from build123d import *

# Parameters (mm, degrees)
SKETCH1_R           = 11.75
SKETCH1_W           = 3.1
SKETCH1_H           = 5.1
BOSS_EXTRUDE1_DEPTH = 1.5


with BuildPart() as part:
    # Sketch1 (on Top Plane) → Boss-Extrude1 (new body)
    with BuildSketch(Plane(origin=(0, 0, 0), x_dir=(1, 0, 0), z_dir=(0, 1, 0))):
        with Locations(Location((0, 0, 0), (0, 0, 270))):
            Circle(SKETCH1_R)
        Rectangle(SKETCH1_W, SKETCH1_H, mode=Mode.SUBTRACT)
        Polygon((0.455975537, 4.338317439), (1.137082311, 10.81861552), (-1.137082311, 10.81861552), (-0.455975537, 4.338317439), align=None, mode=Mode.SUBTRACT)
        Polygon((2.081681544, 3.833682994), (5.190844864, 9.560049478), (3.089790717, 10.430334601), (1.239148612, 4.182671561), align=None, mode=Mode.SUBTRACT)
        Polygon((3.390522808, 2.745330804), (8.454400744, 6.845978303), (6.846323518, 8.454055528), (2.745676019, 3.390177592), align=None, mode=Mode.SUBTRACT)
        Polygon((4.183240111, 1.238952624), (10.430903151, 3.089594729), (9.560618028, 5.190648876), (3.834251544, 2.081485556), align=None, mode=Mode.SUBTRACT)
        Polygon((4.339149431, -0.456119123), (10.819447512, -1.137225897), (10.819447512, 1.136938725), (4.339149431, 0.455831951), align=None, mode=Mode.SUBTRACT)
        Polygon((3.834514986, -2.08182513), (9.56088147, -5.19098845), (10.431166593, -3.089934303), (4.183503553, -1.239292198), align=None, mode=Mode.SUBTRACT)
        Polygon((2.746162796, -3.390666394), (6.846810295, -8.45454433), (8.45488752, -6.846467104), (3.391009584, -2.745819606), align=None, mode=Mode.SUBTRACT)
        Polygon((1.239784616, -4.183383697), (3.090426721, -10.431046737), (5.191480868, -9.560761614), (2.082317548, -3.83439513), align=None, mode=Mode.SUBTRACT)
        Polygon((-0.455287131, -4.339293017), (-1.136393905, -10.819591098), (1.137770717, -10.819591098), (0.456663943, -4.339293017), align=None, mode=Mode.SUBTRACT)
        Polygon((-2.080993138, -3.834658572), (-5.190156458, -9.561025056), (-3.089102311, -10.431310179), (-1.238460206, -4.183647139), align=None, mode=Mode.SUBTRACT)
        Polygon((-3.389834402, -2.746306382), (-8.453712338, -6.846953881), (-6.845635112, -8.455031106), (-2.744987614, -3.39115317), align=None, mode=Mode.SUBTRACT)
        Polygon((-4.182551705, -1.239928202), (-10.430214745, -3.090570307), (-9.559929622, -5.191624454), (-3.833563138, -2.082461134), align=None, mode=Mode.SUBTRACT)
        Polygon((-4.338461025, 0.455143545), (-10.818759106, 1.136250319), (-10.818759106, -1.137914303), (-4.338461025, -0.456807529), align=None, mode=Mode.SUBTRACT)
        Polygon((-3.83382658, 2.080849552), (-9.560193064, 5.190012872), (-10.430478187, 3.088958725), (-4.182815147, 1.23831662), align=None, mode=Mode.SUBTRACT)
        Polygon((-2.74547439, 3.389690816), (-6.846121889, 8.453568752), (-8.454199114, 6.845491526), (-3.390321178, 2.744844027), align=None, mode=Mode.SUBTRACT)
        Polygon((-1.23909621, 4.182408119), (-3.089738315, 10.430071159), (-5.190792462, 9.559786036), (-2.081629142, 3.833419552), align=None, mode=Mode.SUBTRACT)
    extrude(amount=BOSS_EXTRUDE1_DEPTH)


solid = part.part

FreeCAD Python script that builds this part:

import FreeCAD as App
import Part
import Sketcher
Q = App.Units.Quantity


def add_polygon(sketch, points):
    """Adds a closed chain of lines whose ends are joined by coincident constraints."""
    first, n = sketch.GeometryCount, len(points)
    for a, b in zip(points, points[1:] + points[:1]):
        sketch.addGeometry(Part.LineSegment(App.Vector(*a, 0), App.Vector(*b, 0)), False)
    for i in range(n):
        sketch.addConstraint(Sketcher.Constraint("Coincident", first + i, 2, first + (i + 1) % n, 1))

doc = App.newDocument("Part")
params = doc.addObject("Spreadsheet::Sheet", "Params")
for row, (alias, value) in enumerate([
    ("sketch1_diameter", "23.5 mm"),
    ("sketch1_width", "3.1 mm"),
    ("sketch1_height", "5.1 mm"),
    ("pad1_length", "1.5 mm"),
], start=1):
    params.set(f"A{row}", alias)
    params.set(f"B{row}", "=" + value)
    params.setAlias(f"B{row}", alias)

body = doc.addObject("PartDesign::Body", "Body")

# Sketch on XZ plane
sketch1 = doc.addObject("Sketcher::SketchObject", "Sketch")
body.addObject(sketch1)
sketch1.AttachmentSupport = (doc.XZ_Plane, [""])
sketch1.MapMode = "FlatFace"
sketch1.addGeometry(Part.Circle(App.Vector(0, 0, 0), App.Vector(0, 0, 1), 11.8), False)  # 0
add_polygon(sketch1, [(-6.8, -8.5), (-2.7, -3.4), (-3.4, -2.7), (-8.5, -6.8)])  # lines 1-4
add_polygon(sketch1, [(-9.6, -5.2), (-3.8, -2.1), (-4.2, -1.2), (-10.4, -3.1)])  # lines 5-8
add_polygon(sketch1, [(-3.1, -10.4), (-1.2, -4.2), (-2.1, -3.8), (-5.2, -9.6)])  # lines 9-12
add_polygon(sketch1, [(1.1, -10.8), (0.5, -4.3), (-0.5, -4.3), (-1.1, -10.8)])  # lines 13-16
add_polygon(sketch1, [(1.6, 2.5), (-1.6, 2.5), (-1.6, -2.5), (1.6, -2.5)])  # lines 17-20
add_polygon(sketch1, [(-10.8, -1.1), (-4.3, -0.5), (-4.3, 0.5), (-10.8, 1.1)])  # lines 21-24
add_polygon(sketch1, [(-10.4, 3.1), (-4.2, 1.2), (-3.8, 2.1), (-9.6, 5.2)])  # lines 25-28
add_polygon(sketch1, [(-8.5, 6.8), (-3.4, 2.7), (-2.7, 3.4), (-6.8, 8.5)])  # lines 29-32
add_polygon(sketch1, [(-5.2, 9.6), (-2.1, 3.8), (-1.2, 4.2), (-3.1, 10.4)])  # lines 33-36
add_polygon(sketch1, [(5.2, -9.6), (2.1, -3.8), (1.2, -4.2), (3.1, -10.4)])  # lines 37-40
add_polygon(sketch1, [(8.5, -6.8), (3.4, -2.7), (2.7, -3.4), (6.8, -8.5)])  # lines 41-44
add_polygon(sketch1, [(10.4, -3.1), (4.2, -1.2), (3.8, -2.1), (9.6, -5.2)])  # lines 45-48
add_polygon(sketch1, [(10.8, 1.1), (4.3, 0.5), (4.3, -0.5), (10.8, -1.1)])  # lines 49-52
add_polygon(sketch1, [(-1.1, 10.8), (-0.5, 4.3), (0.5, 4.3), (1.1, 10.8)])  # lines 53-56
add_polygon(sketch1, [(3.1, 10.4), (1.2, 4.2), (2.1, 3.8), (5.2, 9.6)])  # lines 57-60
add_polygon(sketch1, [(9.6, 5.2), (3.8, 2.1), (4.2, 1.2), (10.4, 3.1)])  # lines 61-64
add_polygon(sketch1, [(6.8, 8.5), (2.7, 3.4), (3.4, 2.7), (8.5, 6.8)])  # lines 65-68
sketch1.addConstraint(Sketcher.Constraint("Horizontal", 14))
sketch1.addConstraint(Sketcher.Constraint("Horizontal", 16))
sketch1.addConstraint(Sketcher.Constraint("Horizontal", 17))
sketch1.addConstraint(Sketcher.Constraint("Vertical", 18))
sketch1.addConstraint(Sketcher.Constraint("Horizontal", 19))
sketch1.addConstraint(Sketcher.Constraint("Vertical", 20))
sketch1.addConstraint(Sketcher.Constraint("Vertical", 22))
sketch1.addConstraint(Sketcher.Constraint("Vertical", 24))
sketch1.addConstraint(Sketcher.Constraint("Vertical", 50))
sketch1.addConstraint(Sketcher.Constraint("Vertical", 52))
sketch1.addConstraint(Sketcher.Constraint("Horizontal", 54))
sketch1.addConstraint(Sketcher.Constraint("Horizontal", 56))
sketch1.addConstraint(Sketcher.Constraint("Coincident", 0, 3, -1, 1))
sketch1.addConstraint(Sketcher.Constraint("Symmetric", 17, 2, 19, 2, -1, 1))
sketch1.addConstraint(Sketcher.Constraint("Parallel", 2, 4))
sketch1.addConstraint(Sketcher.Constraint("Parallel", 6, 8))
sketch1.addConstraint(Sketcher.Constraint("Parallel", 10, 12))
sketch1.addConstraint(Sketcher.Constraint("Perpendicular", 13, 21))
sketch1.addConstraint(Sketcher.Constraint("Perpendicular", 15, 23))
sketch1.addConstraint(Sketcher.Constraint("Perpendicular", 9, 25))
sketch1.addConstraint(Sketcher.Constraint("Perpendicular", 12, 26))
sketch1.addConstraint(Sketcher.Constraint("Perpendicular", 11, 27))
sketch1.addConstraint(Sketcher.Constraint("Parallel", 26, 28))
sketch1.addConstraint(Sketcher.Constraint("Perpendicular", 1, 29))
sketch1.addConstraint(Sketcher.Constraint("Perpendicular", 4, 30))
sketch1.addConstraint(Sketcher.Constraint("Perpendicular", 3, 31))
sketch1.addConstraint(Sketcher.Constraint("Parallel", 30, 32))
sketch1.addConstraint(Sketcher.Constraint("Perpendicular", 5, 33))
sketch1.addConstraint(Sketcher.Constraint("Perpendicular", 8, 34))
sketch1.addConstraint(Sketcher.Constraint("Perpendicular", 7, 35))
sketch1.addConstraint(Sketcher.Constraint("Parallel", 34, 36))
sketch1.addConstraint(Sketcher.Constraint("Parallel", 33, 37))
sketch1.addConstraint(Sketcher.Constraint("Parallel", 36, 38))
sketch1.addConstraint(Sketcher.Constraint("Parallel", 35, 39))
sketch1.addConstraint(Sketcher.Constraint("Parallel", 38, 40))
sketch1.addConstraint(Sketcher.Constraint("Parallel", 29, 41))
sketch1.addConstraint(Sketcher.Constraint("Parallel", 32, 42))
sketch1.addConstraint(Sketcher.Constraint("Parallel", 31, 43))
sketch1.addConstraint(Sketcher.Constraint("Parallel", 42, 44))
sketch1.addConstraint(Sketcher.Constraint("Parallel", 25, 45))
sketch1.addConstraint(Sketcher.Constraint("Parallel", 28, 46))
sketch1.addConstraint(Sketcher.Constraint("Parallel", 27, 47))
sketch1.addConstraint(Sketcher.Constraint("Parallel", 46, 48))
sketch1.addConstraint(Sketcher.Constraint("Parallel", 21, 49))
sketch1.addConstraint(Sketcher.Constraint("Parallel", 23, 51))
sketch1.addConstraint(Sketcher.Constraint("Perpendicular", 49, 53))
sketch1.addConstraint(Sketcher.Constraint("Perpendicular", 51, 55))
sketch1.addConstraint(Sketcher.Constraint("Perpendicular", 45, 57))
sketch1.addConstraint(Sketcher.Constraint("Perpendicular", 48, 58))
sketch1.addConstraint(Sketcher.Constraint("Perpendicular", 47, 59))
sketch1.addConstraint(Sketcher.Constraint("Parallel", 58, 60))
sketch1.addConstraint(Sketcher.Constraint("Perpendicular", 37, 61))
sketch1.addConstraint(Sketcher.Constraint("Perpendicular", 40, 62))
sketch1.addConstraint(Sketcher.Constraint("Perpendicular", 39, 63))
sketch1.addConstraint(Sketcher.Constraint("Parallel", 62, 64))
sketch1.addConstraint(Sketcher.Constraint("Perpendicular", 41, 65))
sketch1.addConstraint(Sketcher.Constraint("Perpendicular", 44, 66))
sketch1.addConstraint(Sketcher.Constraint("Perpendicular", 43, 67))
sketch1.addConstraint(Sketcher.Constraint("Parallel", 66, 68))
sketch1.addConstraint(Sketcher.Constraint("Equal", 14, 54))
sketch1.addConstraint(Sketcher.Constraint("Equal", 16, 56))
sketch1.addConstraint(Sketcher.Constraint("Equal", 54, 22))
sketch1.addConstraint(Sketcher.Constraint("Equal", 56, 24))
sketch1.addConstraint(Sketcher.Constraint("Equal", 22, 50))
sketch1.addConstraint(Sketcher.Constraint("Equal", 24, 52))
sketch1.addConstraint(Sketcher.Constraint("Equal", 1, 3))
sketch1.addConstraint(Sketcher.Constraint("Equal", 3, 5))
sketch1.addConstraint(Sketcher.Constraint("Equal", 2, 6))
sketch1.addConstraint(Sketcher.Constraint("Equal", 5, 7))
sketch1.addConstraint(Sketcher.Constraint("Equal", 4, 8))
sketch1.addConstraint(Sketcher.Constraint("Equal", 7, 9))
sketch1.addConstraint(Sketcher.Constraint("Equal", 6, 10))
sketch1.addConstraint(Sketcher.Constraint("Equal", 9, 11))
sketch1.addConstraint(Sketcher.Constraint("Equal", 8, 12))
sketch1.addConstraint(Sketcher.Constraint("Equal", 11, 13))
sketch1.addConstraint(Sketcher.Constraint("Equal", 13, 15))
sketch1.addConstraint(Sketcher.Constraint("Equal", 23, 25))
sketch1.addConstraint(Sketcher.Constraint("Equal", 10, 26))
sketch1.addConstraint(Sketcher.Constraint("Equal", 27, 29))
sketch1.addConstraint(Sketcher.Constraint("Equal", 26, 30))
sketch1.addConstraint(Sketcher.Constraint("Equal", 31, 33))
sketch1.addConstraint(Sketcher.Constraint("Equal", 30, 34))
sketch1.addConstraint(Sketcher.Constraint("Equal", 35, 37))
sketch1.addConstraint(Sketcher.Constraint("Equal", 34, 38))
sketch1.addConstraint(Sketcher.Constraint("Equal", 39, 41))
sketch1.addConstraint(Sketcher.Constraint("Equal", 38, 42))
sketch1.addConstraint(Sketcher.Constraint("Equal", 43, 45))
sketch1.addConstraint(Sketcher.Constraint("Equal", 42, 46))
sketch1.addConstraint(Sketcher.Constraint("Equal", 55, 57))
sketch1.addConstraint(Sketcher.Constraint("Equal", 46, 58))
sketch1.addConstraint(Sketcher.Constraint("Equal", 59, 61))
sketch1.addConstraint(Sketcher.Constraint("Equal", 58, 62))
sketch1.addConstraint(Sketcher.Constraint("Equal", 63, 65))
sketch1.addConstraint(Sketcher.Constraint("Equal", 62, 66))
sketch1.addConstraint(Sketcher.Constraint("Diameter", 0, Q("23.5 mm")))
sketch1.addConstraint(Sketcher.Constraint("Angle", 1, Q("51 deg")))
sketch1.addConstraint(Sketcher.Constraint("Angle", 2, Q("135 deg")))
sketch1.addConstraint(Sketcher.Constraint("Angle", 13, Q("96 deg")))
sketch1.addConstraint(Sketcher.Constraint("DistanceX", 17, 2, 17, 1, Q("3.1 mm")))
sketch1.addConstraint(Sketcher.Constraint("DistanceY", 18, 2, 18, 1, Q("5.1 mm")))
sketch1.addConstraint(Sketcher.Constraint("Angle", 5, Q("28.5 deg")))
sketch1.addConstraint(Sketcher.Constraint("Angle", 9, Q("73.5 deg")))
sketch1.addConstraint(Sketcher.Constraint("DistanceX", 14, 2, 14, 1, Q("0.911951 mm")))
sketch1.addConstraint(Sketcher.Constraint("DistanceX", 3, 2, -1, 1, Q("8.454199 mm")))
sketch1.addConstraint(Sketcher.Constraint("DistanceX", -1, 1, 44, 2, Q("8.454401 mm")))
sketch1.addConstraint(Sketcher.Constraint("Distance", 2, Q("0.911951 mm")))
sketch1.addConstraint(Sketcher.Constraint("DistanceX", 16, 1, 16, 2, Q("2.274165 mm")))
sketch1.addConstraint(Sketcher.Constraint("DistanceY", 1, 2, -1, 1, Q("3.389691 mm")))
sketch1.addConstraint(Sketcher.Constraint("DistanceY", 5, 2, -1, 1, Q("2.08085 mm")))
sketch1.addConstraint(Sketcher.Constraint("DistanceX", 7, 2, -1, 1, Q("10.430478 mm")))
sketch1.addConstraint(Sketcher.Constraint("DistanceY", 9, 2, -1, 1, Q("4.182408 mm")))
sketch1.addConstraint(Sketcher.Constraint("DistanceX", 10, 2, -1, 1, Q("2.081629 mm")))
sketch1.addConstraint(Sketcher.Constraint("DistanceX", 21, 2, -1, 1, Q("4.338461 mm")))
sketch1.addConstraint(Sketcher.Constraint("DistanceY", 24, 2, -1, 1, Q("1.13625 mm")))
sketch1.addConstraint(Sketcher.Constraint("DistanceX", 25, 2, -1, 1, Q("4.182552 mm")))
sketch1.addConstraint(Sketcher.Constraint("DistanceY", -1, 1, 25, 2, Q("1.239928 mm")))
sketch1.addConstraint(Sketcher.Constraint("DistanceY", -1, 1, 31, 2, Q("8.455031 mm")))
sketch1.addConstraint(Sketcher.Constraint("DistanceY", -1, 1, 33, 2, Q("3.834659 mm")))
sketch1.addConstraint(Sketcher.Constraint("DistanceX", 34, 2, -1, 1, Q("1.23846 mm")))
sketch1.addConstraint(Sketcher.Constraint("DistanceX", -1, 1, 37, 2, Q("2.081682 mm")))
sketch1.addConstraint(Sketcher.Constraint("DistanceY", 38, 2, -1, 1, Q("4.182672 mm")))
sketch1.addConstraint(Sketcher.Constraint("DistanceY", 41, 2, -1, 1, Q("2.745331 mm")))
sketch1.addConstraint(Sketcher.Constraint("DistanceX", -1, 1, 45, 2, Q("4.18324 mm")))
sketch1.addConstraint(Sketcher.Constraint("DistanceY", 47, 2, -1, 1, Q("5.190649 mm")))
sketch1.addConstraint(Sketcher.Constraint("DistanceX", -1, 1, 49, 2, Q("4.339149 mm")))
sketch1.addConstraint(Sketcher.Constraint("DistanceY", -1, 1, 49, 2, Q("0.456119 mm")))
sketch1.addConstraint(Sketcher.Constraint("DistanceX", -1, 1, 55, 2, Q("1.137771 mm")))
sketch1.addConstraint(Sketcher.Constraint("DistanceY", -1, 1, 55, 2, Q("10.819591 mm")))
sketch1.addConstraint(Sketcher.Constraint("DistanceX", -1, 1, 59, 2, Q("5.191481 mm")))
sketch1.addConstraint(Sketcher.Constraint("DistanceY", -1, 1, 59, 2, Q("9.560762 mm")))
sketch1.addConstraint(Sketcher.Constraint("DistanceX", -1, 1, 64, 2, Q("9.560881 mm")))
sketch1.addConstraint(Sketcher.Constraint("DistanceY", -1, 1, 64, 2, Q("5.190988 mm")))
sketch1.addConstraint(Sketcher.Constraint("DistanceX", -1, 1, 66, 2, Q("3.39101 mm")))
sketch1.addConstraint(Sketcher.Constraint("DistanceY", -1, 1, 66, 2, Q("2.74582 mm")))
sketch1.addConstraint(Sketcher.Constraint("DistanceX", -1, 1, 13, 2, Q("0.455976 mm")))
sketch1.addConstraint(Sketcher.Constraint("DistanceY", 13, 2, -1, 1, Q("4.338317 mm")))
sketch1.addConstraint(Sketcher.Constraint("DistanceX", 29, 2, -1, 1, Q("3.389834 mm")))
sketch1.setExpression("Constraints[162]", "Params.sketch1_diameter")
sketch1.setExpression("Constraints[166]", "Params.sketch1_width")
sketch1.setExpression("Constraints[167]", "Params.sketch1_height")
pad1 = doc.addObject("PartDesign::Pad", "Pad")
body.addObject(pad1)
pad1.Profile = sketch1
pad1.setExpression("Length", "Params.pad1_length")
pad1.Reversed = True

doc.recompute()
